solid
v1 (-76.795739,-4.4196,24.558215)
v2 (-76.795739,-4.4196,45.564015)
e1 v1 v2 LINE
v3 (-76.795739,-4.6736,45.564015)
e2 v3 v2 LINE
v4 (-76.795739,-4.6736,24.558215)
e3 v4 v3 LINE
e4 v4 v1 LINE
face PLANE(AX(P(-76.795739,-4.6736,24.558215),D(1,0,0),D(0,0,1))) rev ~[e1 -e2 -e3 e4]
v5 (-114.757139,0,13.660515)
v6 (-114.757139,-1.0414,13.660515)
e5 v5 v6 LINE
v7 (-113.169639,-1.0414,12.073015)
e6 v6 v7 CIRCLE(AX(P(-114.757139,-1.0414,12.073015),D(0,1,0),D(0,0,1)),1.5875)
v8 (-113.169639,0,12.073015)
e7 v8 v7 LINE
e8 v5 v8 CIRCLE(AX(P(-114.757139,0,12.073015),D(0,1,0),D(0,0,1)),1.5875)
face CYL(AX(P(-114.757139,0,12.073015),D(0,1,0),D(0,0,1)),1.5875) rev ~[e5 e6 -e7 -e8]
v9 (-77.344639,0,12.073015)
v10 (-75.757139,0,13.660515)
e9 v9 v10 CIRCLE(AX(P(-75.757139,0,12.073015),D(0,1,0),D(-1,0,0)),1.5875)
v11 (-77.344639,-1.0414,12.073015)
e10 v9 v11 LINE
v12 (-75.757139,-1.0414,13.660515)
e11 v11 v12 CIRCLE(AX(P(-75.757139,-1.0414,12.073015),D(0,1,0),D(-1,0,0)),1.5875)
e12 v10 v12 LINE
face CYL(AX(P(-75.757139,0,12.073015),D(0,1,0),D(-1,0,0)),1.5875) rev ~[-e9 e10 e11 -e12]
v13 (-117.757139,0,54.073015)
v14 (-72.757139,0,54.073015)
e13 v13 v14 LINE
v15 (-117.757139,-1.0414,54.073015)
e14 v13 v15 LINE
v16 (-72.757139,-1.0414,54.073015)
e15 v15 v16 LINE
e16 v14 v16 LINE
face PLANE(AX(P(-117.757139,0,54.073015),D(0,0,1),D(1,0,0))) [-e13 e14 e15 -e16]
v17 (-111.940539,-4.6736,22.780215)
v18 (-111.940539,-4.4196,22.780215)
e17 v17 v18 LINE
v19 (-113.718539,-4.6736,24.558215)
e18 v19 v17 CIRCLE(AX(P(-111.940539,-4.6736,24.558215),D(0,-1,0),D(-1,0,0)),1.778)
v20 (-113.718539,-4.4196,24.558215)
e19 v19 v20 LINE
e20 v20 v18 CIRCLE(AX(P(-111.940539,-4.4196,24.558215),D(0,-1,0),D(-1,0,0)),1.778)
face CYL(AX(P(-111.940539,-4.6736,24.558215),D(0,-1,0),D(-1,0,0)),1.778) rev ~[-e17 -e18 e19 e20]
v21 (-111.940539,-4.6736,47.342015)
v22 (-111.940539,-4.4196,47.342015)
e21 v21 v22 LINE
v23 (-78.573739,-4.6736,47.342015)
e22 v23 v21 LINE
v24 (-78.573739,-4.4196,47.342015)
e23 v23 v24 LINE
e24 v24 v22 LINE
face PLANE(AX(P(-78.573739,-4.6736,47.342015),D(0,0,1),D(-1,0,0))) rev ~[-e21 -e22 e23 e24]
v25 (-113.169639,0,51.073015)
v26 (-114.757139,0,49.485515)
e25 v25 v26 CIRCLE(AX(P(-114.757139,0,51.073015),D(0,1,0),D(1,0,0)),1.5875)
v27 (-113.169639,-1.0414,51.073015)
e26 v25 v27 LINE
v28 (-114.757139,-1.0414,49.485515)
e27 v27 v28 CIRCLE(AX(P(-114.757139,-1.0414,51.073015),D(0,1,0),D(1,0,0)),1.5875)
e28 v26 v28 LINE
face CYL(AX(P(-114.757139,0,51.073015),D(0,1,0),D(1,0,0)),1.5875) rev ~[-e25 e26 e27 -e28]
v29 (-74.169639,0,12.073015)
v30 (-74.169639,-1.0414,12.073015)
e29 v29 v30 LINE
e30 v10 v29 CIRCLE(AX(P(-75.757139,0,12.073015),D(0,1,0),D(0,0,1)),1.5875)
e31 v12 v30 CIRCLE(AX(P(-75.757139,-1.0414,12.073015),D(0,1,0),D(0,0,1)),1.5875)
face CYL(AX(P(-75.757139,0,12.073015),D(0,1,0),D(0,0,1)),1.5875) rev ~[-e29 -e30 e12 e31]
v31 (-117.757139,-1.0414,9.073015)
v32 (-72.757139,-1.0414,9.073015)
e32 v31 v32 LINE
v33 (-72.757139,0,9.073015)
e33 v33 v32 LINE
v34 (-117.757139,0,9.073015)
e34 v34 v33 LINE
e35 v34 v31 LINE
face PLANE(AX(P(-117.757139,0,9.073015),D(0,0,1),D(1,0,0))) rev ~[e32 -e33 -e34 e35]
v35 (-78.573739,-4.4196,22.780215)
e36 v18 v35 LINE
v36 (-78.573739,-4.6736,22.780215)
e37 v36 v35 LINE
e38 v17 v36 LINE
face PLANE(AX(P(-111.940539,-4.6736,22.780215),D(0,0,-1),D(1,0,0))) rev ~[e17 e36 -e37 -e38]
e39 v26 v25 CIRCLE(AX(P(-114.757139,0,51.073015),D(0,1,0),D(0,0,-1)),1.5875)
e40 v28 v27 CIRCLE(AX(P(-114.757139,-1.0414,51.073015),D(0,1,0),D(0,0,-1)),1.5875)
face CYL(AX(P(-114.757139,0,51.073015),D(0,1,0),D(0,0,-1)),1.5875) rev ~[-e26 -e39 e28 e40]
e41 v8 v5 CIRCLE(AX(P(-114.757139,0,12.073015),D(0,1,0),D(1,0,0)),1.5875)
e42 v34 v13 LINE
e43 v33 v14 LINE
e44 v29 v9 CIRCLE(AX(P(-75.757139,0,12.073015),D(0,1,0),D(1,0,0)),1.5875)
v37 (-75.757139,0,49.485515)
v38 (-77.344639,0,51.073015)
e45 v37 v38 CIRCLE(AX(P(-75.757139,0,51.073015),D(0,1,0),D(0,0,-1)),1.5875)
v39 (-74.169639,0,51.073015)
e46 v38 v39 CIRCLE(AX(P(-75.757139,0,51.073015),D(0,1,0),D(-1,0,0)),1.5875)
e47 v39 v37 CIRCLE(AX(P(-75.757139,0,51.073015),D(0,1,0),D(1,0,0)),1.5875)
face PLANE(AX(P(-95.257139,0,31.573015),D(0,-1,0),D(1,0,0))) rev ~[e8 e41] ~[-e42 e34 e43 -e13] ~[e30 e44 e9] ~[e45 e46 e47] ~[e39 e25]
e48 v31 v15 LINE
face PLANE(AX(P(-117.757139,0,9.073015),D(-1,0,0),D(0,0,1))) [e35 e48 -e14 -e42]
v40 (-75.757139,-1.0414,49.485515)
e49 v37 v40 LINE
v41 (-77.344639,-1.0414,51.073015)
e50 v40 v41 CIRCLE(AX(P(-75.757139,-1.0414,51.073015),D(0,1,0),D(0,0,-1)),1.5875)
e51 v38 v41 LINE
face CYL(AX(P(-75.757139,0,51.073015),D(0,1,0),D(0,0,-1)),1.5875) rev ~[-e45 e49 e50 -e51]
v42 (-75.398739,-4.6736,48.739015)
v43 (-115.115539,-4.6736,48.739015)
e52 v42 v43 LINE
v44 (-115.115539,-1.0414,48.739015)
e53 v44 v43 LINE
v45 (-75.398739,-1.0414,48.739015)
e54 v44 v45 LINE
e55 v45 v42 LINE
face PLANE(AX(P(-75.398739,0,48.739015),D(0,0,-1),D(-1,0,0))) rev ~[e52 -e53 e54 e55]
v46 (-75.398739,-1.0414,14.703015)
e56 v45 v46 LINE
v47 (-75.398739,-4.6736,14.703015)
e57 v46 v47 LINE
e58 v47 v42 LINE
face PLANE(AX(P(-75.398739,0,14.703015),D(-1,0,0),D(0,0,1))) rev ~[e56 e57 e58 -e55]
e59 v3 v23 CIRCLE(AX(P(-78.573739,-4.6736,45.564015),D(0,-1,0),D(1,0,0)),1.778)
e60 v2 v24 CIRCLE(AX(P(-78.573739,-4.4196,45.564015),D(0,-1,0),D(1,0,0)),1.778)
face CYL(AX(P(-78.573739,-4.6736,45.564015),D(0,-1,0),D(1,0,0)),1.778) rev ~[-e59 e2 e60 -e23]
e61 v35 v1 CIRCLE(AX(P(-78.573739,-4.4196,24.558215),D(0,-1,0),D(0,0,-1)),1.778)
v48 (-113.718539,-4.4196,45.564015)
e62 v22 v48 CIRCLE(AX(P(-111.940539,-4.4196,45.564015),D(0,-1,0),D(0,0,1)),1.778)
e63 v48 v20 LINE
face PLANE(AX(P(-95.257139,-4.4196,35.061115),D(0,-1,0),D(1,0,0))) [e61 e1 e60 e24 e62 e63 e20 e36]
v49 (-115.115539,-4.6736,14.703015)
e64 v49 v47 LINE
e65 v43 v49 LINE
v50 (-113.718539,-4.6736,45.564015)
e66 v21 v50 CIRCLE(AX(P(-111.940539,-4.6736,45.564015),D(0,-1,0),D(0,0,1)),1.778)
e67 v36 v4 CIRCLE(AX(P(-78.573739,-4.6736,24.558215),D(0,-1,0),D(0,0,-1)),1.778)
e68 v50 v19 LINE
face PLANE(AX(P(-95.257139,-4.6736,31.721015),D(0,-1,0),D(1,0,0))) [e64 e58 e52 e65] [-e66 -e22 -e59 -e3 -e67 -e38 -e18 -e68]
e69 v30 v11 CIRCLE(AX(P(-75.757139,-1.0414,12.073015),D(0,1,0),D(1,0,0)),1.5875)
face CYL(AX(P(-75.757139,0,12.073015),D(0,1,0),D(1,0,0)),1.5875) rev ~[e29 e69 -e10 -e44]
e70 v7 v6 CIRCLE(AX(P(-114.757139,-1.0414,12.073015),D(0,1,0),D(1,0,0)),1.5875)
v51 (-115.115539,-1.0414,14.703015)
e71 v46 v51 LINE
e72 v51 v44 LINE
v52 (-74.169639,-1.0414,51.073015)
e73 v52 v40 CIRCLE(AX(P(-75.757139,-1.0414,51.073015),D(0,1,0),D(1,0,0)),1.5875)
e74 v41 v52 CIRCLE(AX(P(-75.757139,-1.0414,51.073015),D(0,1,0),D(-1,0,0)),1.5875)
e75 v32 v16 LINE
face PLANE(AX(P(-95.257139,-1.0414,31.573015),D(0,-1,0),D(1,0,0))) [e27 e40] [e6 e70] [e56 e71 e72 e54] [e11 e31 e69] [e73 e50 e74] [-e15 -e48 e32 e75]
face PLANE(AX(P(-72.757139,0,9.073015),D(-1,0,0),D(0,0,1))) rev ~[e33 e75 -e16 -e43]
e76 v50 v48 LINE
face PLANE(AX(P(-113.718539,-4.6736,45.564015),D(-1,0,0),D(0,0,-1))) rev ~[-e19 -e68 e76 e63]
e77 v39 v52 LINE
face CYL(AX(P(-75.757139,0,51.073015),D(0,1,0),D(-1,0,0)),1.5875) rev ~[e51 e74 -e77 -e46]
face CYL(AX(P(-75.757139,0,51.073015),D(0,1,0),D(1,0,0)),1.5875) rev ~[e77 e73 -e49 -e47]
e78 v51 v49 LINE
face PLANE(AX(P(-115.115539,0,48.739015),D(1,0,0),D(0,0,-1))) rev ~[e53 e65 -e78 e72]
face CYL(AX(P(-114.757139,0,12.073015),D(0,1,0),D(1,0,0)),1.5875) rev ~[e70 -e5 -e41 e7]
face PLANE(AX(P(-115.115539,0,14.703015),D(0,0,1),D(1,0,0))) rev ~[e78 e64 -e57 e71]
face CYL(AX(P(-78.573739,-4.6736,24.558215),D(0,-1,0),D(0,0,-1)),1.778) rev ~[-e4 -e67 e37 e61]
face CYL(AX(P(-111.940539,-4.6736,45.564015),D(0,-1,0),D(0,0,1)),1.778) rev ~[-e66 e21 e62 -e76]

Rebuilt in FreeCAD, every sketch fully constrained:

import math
import FreeCAD as App
import Part
import Sketcher
Q = App.Units.Quantity


def add_polygon(sketch, points):
    """Adds a closed chain of lines whose ends are joined by coincident constraints."""
    first, n = sketch.GeometryCount, len(points)
    for a, b in zip(points, points[1:] + points[:1]):
        sketch.addGeometry(Part.LineSegment(App.Vector(*a, 0), App.Vector(*b, 0)), False)
    for i in range(n):
        sketch.addConstraint(Sketcher.Constraint("Coincident", first + i, 2, first + (i + 1) % n, 1))

doc = App.newDocument("Part")
body = doc.addObject("PartDesign::Body", "Body")

sketch1 = body.newObject("Sketcher::SketchObject", "Sketch")
sketch1.AttachmentSupport = (doc.getObject("XZ_Plane"), [""])
sketch1.MapMode = "FlatFace"
add_polygon(sketch1, [(-117.8, 54.1), (-117.8, 9.1), (-72.8, 9.1), (-72.8, 54.1)])
add_polygon(sketch1, [(-115.1, 48.7), (-75.4, 48.7), (-75.4, 14.7), (-115.1, 14.7)])
sketch1.addGeometry(Part.ArcOfCircle(Part.Circle(App.Vector(-75.8, 12.1, 0), App.Vector(0, 0, 1), 1.6), math.radians(0), math.radians(90)), False)
sketch1.addGeometry(Part.ArcOfCircle(Part.Circle(App.Vector(-75.8, 12.1, 0), App.Vector(0, 0, 1), 1.6), math.radians(180), math.radians(360)), False)
sketch1.addGeometry(Part.ArcOfCircle(Part.Circle(App.Vector(-75.8, 12.1, 0), App.Vector(0, 0, 1), 1.6), math.radians(90), math.radians(180)), False)
sketch1.addGeometry(Part.ArcOfCircle(Part.Circle(App.Vector(-114.8, 12.1, 0), App.Vector(0, 0, 1), 1.6), math.radians(90), math.radians(360)), False)
sketch1.addGeometry(Part.ArcOfCircle(Part.Circle(App.Vector(-114.8, 12.1, 0), App.Vector(0, 0, 1), 1.6), math.radians(0), math.radians(90)), False)
sketch1.addGeometry(Part.ArcOfCircle(Part.Circle(App.Vector(-75.8, 51.1, 0), App.Vector(0, 0, 1), 1.6), math.radians(-90), math.radians(0)), False)
sketch1.addGeometry(Part.ArcOfCircle(Part.Circle(App.Vector(-75.8, 51.1, 0), App.Vector(0, 0, 1), 1.6), math.radians(180), math.radians(270)), False)
sketch1.addGeometry(Part.ArcOfCircle(Part.Circle(App.Vector(-75.8, 51.1, 0), App.Vector(0, 0, 1), 1.6), math.radians(0), math.radians(180)), False)
sketch1.addGeometry(Part.ArcOfCircle(Part.Circle(App.Vector(-114.8, 51.1, 0), App.Vector(0, 0, 1), 1.6), math.radians(0), math.radians(270)), False)
sketch1.addGeometry(Part.ArcOfCircle(Part.Circle(App.Vector(-114.8, 51.1, 0), App.Vector(0, 0, 1), 1.6), math.radians(-90), math.radians(0)), False)
sketch1.addConstraint(Sketcher.Constraint("Tangent", 8, 1, 9, 2))
sketch1.addConstraint(Sketcher.Constraint("Tangent", 9, 1, 10, 2))
sketch1.addConstraint(Sketcher.Constraint("Tangent", 10, 1, 8, 2))
sketch1.addConstraint(Sketcher.Constraint("Tangent", 11, 1, 12, 2))
sketch1.addConstraint(Sketcher.Constraint("Coincident", 12, 1, 11, 2))
sketch1.addConstraint(Sketcher.Constraint("Tangent", 13, 1, 14, 2))
sketch1.addConstraint(Sketcher.Constraint("Tangent", 14, 1, 15, 2))
sketch1.addConstraint(Sketcher.Constraint("Tangent", 15, 1, 13, 2))
sketch1.addConstraint(Sketcher.Constraint("Tangent", 16, 1, 17, 2))
sketch1.addConstraint(Sketcher.Constraint("Coincident", 17, 1, 16, 2))
sketch1.addConstraint(Sketcher.Constraint("Vertical", 0))
sketch1.addConstraint(Sketcher.Constraint("Horizontal", 1))
sketch1.addConstraint(Sketcher.Constraint("Vertical", 2))
sketch1.addConstraint(Sketcher.Constraint("Horizontal", 3))
sketch1.addConstraint(Sketcher.Constraint("Horizontal", 4))
sketch1.addConstraint(Sketcher.Constraint("Vertical", 5))
sketch1.addConstraint(Sketcher.Constraint("Horizontal", 6))
sketch1.addConstraint(Sketcher.Constraint("Vertical", 7))
sketch1.addConstraint(Sketcher.Constraint("Equal", 10, 11))
sketch1.addConstraint(Sketcher.Constraint("Equal", 12, 13))
sketch1.addConstraint(Sketcher.Constraint("Equal", 15, 16))
sketch1.addConstraint(Sketcher.Constraint("Horizontal", 10, 3, 11, 3))
sketch1.addConstraint(Sketcher.Constraint("Horizontal", 15, 3, 16, 3))
sketch1.addConstraint(Sketcher.Constraint("Horizontal", 12, 3, 8, 1))
sketch1.addConstraint(Sketcher.Constraint("Horizontal", 8, 1, 9, 1))
sketch1.addConstraint(Sketcher.Constraint("Horizontal", 9, 1, 12, 1))
sketch1.addConstraint(Sketcher.Constraint("Horizontal", 17, 3, 14, 1))
sketch1.addConstraint(Sketcher.Constraint("Horizontal", 14, 1, 15, 1))
sketch1.addConstraint(Sketcher.Constraint("Horizontal", 15, 1, 16, 1))
sketch1.addConstraint(Sketcher.Constraint("Vertical", 10, 3, 13, 3))
sketch1.addConstraint(Sketcher.Constraint("Vertical", 12, 3, 16, 3))
sketch1.addConstraint(Sketcher.Constraint("Vertical", 15, 3, 10, 1))
sketch1.addConstraint(Sketcher.Constraint("Vertical", 17, 3, 11, 1))
sketch1.addConstraint(Sketcher.Constraint("Vertical", 10, 1, 13, 1))
sketch1.addConstraint(Sketcher.Constraint("Vertical", 11, 1, 17, 1))
sketch1.addConstraint(Sketcher.Constraint("Equal", 3, 0))
sketch1.addConstraint(Sketcher.Constraint("Radius", 8, Q("0.0625 in")))
sketch1.addConstraint(Sketcher.Constraint("DistanceY", 5, 2, 5, 1, Q("1.34 in")))
sketch1.addConstraint(Sketcher.Constraint("DistanceY", 4, 2, 2, 2, Q("0.21 in")))
sketch1.addConstraint(Sketcher.Constraint("DistanceX", 4, 2, 2, 2, Q("0.104 in")))
sketch1.addConstraint(Sketcher.Constraint("DistanceX", 0, 2, 6, 2, Q("0.104 in")))
sketch1.addConstraint(Sketcher.Constraint("DistanceX", 1, 1, 1, 2, 45.0))
sketch1.addConstraint(Sketcher.Constraint("DistanceX", 11, 3, 8, 3, 39.0))
sketch1.addConstraint(Sketcher.Constraint("DistanceY", 8, 3, 13, 3, 39.0))
sketch1.addConstraint(Sketcher.Constraint("DistanceX", 0, 2, 11, 3, 3.0))
sketch1.addConstraint(Sketcher.Constraint("DistanceY", 0, 2, 11, 3, 3.0))
sketch1.addConstraint(Sketcher.Constraint("DistanceX", 8, 3, -1, 1, 75.757139))
sketch1.addConstraint(Sketcher.Constraint("DistanceY", -1, 1, 8, 3, 12.073015))
pad1 = body.newObject("PartDesign::Pad", "Pad")
pad1.Profile = sketch1
pad1.Length = Q("0.041 in")

sketch2 = body.newObject("Sketcher::SketchObject", "Sketch001")
sketch2.AttachmentSupport = (doc.getObject("XZ_Plane"), [""])
sketch2.MapMode = "FlatFace"
add_polygon(sketch2, [(-115, 49), (-115, 15), (-75, 15), (-75, 49)])
sketch2.addConstraint(Sketcher.Constraint("Vertical", 0))
sketch2.addConstraint(Sketcher.Constraint("Horizontal", 1))
sketch2.addConstraint(Sketcher.Constraint("Vertical", 2))
sketch2.addConstraint(Sketcher.Constraint("Horizontal", 3))
sketch2.addConstraint(Sketcher.Constraint("DistanceY", 0, 2, 0, 1, Q("1.34 in")))
sketch2.addConstraint(Sketcher.Constraint("DistanceX", 1, 1, 1, 2, 39.7168))
sketch2.addConstraint(Sketcher.Constraint("DistanceX", 0, 2, -1, 1, 115.115539))
sketch2.addConstraint(Sketcher.Constraint("DistanceY", -1, 1, 0, 2, 14.703015))
pad2 = body.newObject("PartDesign::Pad", "Pad001")
pad2.Profile = sketch2
pad2.Length = Q("0.184 in")

sketch3 = body.newObject("Sketcher::SketchObject", "Sketch002")
sketch3.AttachmentSupport = (doc.getObject("XZ_Plane"), [""])
sketch3.MapMode = "FlatFace"
sketch3.AttachmentOffset = App.Placement(App.Vector(0, 0, 0.184 * 25.4), App.Rotation())
sketch3.addGeometry(Part.LineSegment(App.Vector(-78.6, 47.3, 0), App.Vector(-111.9, 47.3, 0)), False)
sketch3.addGeometry(Part.ArcOfCircle(Part.Circle(App.Vector(-111.9, 45.6, 0), App.Vector(0, 0, 1), 1.8), math.radians(90), math.radians(180)), False)
sketch3.addGeometry(Part.LineSegment(App.Vector(-113.7, 45.6, 0), App.Vector(-113.7, 24.6, 0)), False)
sketch3.addGeometry(Part.ArcOfCircle(Part.Circle(App.Vector(-111.9, 24.6, 0), App.Vector(0, 0, 1), 1.8), math.radians(180), math.radians(270)), False)
sketch3.addGeometry(Part.LineSegment(App.Vector(-111.9, 22.8, 0), App.Vector(-78.6, 22.8, 0)), False)
sketch3.addGeometry(Part.ArcOfCircle(Part.Circle(App.Vector(-78.6, 24.6, 0), App.Vector(0, 0, 1), 1.8), math.radians(-90), math.radians(0)), False)
sketch3.addGeometry(Part.LineSegment(App.Vector(-76.8, 24.6, 0), App.Vector(-76.8, 45.6, 0)), False)
sketch3.addGeometry(Part.ArcOfCircle(Part.Circle(App.Vector(-78.6, 45.6, 0), App.Vector(0, 0, 1), 1.8), math.radians(0), math.radians(90)), False)
sketch3.addConstraint(Sketcher.Constraint("Tangent", 0, 2, 1, 1))
sketch3.addConstraint(Sketcher.Constraint("Tangent", 1, 2, 2, 1))
sketch3.addConstraint(Sketcher.Constraint("Tangent", 2, 2, 3, 1))
sketch3.addConstraint(Sketcher.Constraint("Tangent", 3, 2, 4, 1))
sketch3.addConstraint(Sketcher.Constraint("Tangent", 4, 2, 5, 1))
sketch3.addConstraint(Sketcher.Constraint("Tangent", 5, 2, 6, 1))
sketch3.addConstraint(Sketcher.Constraint("Tangent", 6, 2, 7, 1))
sketch3.addConstraint(Sketcher.Constraint("Tangent", 7, 2, 0, 1))
sketch3.addConstraint(Sketcher.Constraint("Horizontal", 0))
sketch3.addConstraint(Sketcher.Constraint("Vertical", 2))
sketch3.addConstraint(Sketcher.Constraint("Horizontal", 4))
sketch3.addConstraint(Sketcher.Constraint("Vertical", 6))
sketch3.addConstraint(Sketcher.Constraint("Equal", 1, 3))
sketch3.addConstraint(Sketcher.Constraint("Equal", 3, 5))
sketch3.addConstraint(Sketcher.Constraint("Equal", 5, 7))
sketch3.addConstraint(Sketcher.Constraint("Radius", 1, Q("0.07 in")))
sketch3.addConstraint(Sketcher.Constraint("DistanceY", 2, 2, 2, 1, Q("0.827 in")))
sketch3.addConstraint(Sketcher.Constraint("DistanceX", 0, 2, 0, 1, 33.3668))
sketch3.addConstraint(Sketcher.Constraint("DistanceX", 1, 3, -1, 1, 111.940539))
sketch3.addConstraint(Sketcher.Constraint("DistanceY", -1, 1, 1, 3, 45.564015))
pocket1 = body.newObject("PartDesign::Pocket", "Pocket")
pocket1.Profile = sketch3
pocket1.Length = Q("0.01 in")

doc.recompute()
